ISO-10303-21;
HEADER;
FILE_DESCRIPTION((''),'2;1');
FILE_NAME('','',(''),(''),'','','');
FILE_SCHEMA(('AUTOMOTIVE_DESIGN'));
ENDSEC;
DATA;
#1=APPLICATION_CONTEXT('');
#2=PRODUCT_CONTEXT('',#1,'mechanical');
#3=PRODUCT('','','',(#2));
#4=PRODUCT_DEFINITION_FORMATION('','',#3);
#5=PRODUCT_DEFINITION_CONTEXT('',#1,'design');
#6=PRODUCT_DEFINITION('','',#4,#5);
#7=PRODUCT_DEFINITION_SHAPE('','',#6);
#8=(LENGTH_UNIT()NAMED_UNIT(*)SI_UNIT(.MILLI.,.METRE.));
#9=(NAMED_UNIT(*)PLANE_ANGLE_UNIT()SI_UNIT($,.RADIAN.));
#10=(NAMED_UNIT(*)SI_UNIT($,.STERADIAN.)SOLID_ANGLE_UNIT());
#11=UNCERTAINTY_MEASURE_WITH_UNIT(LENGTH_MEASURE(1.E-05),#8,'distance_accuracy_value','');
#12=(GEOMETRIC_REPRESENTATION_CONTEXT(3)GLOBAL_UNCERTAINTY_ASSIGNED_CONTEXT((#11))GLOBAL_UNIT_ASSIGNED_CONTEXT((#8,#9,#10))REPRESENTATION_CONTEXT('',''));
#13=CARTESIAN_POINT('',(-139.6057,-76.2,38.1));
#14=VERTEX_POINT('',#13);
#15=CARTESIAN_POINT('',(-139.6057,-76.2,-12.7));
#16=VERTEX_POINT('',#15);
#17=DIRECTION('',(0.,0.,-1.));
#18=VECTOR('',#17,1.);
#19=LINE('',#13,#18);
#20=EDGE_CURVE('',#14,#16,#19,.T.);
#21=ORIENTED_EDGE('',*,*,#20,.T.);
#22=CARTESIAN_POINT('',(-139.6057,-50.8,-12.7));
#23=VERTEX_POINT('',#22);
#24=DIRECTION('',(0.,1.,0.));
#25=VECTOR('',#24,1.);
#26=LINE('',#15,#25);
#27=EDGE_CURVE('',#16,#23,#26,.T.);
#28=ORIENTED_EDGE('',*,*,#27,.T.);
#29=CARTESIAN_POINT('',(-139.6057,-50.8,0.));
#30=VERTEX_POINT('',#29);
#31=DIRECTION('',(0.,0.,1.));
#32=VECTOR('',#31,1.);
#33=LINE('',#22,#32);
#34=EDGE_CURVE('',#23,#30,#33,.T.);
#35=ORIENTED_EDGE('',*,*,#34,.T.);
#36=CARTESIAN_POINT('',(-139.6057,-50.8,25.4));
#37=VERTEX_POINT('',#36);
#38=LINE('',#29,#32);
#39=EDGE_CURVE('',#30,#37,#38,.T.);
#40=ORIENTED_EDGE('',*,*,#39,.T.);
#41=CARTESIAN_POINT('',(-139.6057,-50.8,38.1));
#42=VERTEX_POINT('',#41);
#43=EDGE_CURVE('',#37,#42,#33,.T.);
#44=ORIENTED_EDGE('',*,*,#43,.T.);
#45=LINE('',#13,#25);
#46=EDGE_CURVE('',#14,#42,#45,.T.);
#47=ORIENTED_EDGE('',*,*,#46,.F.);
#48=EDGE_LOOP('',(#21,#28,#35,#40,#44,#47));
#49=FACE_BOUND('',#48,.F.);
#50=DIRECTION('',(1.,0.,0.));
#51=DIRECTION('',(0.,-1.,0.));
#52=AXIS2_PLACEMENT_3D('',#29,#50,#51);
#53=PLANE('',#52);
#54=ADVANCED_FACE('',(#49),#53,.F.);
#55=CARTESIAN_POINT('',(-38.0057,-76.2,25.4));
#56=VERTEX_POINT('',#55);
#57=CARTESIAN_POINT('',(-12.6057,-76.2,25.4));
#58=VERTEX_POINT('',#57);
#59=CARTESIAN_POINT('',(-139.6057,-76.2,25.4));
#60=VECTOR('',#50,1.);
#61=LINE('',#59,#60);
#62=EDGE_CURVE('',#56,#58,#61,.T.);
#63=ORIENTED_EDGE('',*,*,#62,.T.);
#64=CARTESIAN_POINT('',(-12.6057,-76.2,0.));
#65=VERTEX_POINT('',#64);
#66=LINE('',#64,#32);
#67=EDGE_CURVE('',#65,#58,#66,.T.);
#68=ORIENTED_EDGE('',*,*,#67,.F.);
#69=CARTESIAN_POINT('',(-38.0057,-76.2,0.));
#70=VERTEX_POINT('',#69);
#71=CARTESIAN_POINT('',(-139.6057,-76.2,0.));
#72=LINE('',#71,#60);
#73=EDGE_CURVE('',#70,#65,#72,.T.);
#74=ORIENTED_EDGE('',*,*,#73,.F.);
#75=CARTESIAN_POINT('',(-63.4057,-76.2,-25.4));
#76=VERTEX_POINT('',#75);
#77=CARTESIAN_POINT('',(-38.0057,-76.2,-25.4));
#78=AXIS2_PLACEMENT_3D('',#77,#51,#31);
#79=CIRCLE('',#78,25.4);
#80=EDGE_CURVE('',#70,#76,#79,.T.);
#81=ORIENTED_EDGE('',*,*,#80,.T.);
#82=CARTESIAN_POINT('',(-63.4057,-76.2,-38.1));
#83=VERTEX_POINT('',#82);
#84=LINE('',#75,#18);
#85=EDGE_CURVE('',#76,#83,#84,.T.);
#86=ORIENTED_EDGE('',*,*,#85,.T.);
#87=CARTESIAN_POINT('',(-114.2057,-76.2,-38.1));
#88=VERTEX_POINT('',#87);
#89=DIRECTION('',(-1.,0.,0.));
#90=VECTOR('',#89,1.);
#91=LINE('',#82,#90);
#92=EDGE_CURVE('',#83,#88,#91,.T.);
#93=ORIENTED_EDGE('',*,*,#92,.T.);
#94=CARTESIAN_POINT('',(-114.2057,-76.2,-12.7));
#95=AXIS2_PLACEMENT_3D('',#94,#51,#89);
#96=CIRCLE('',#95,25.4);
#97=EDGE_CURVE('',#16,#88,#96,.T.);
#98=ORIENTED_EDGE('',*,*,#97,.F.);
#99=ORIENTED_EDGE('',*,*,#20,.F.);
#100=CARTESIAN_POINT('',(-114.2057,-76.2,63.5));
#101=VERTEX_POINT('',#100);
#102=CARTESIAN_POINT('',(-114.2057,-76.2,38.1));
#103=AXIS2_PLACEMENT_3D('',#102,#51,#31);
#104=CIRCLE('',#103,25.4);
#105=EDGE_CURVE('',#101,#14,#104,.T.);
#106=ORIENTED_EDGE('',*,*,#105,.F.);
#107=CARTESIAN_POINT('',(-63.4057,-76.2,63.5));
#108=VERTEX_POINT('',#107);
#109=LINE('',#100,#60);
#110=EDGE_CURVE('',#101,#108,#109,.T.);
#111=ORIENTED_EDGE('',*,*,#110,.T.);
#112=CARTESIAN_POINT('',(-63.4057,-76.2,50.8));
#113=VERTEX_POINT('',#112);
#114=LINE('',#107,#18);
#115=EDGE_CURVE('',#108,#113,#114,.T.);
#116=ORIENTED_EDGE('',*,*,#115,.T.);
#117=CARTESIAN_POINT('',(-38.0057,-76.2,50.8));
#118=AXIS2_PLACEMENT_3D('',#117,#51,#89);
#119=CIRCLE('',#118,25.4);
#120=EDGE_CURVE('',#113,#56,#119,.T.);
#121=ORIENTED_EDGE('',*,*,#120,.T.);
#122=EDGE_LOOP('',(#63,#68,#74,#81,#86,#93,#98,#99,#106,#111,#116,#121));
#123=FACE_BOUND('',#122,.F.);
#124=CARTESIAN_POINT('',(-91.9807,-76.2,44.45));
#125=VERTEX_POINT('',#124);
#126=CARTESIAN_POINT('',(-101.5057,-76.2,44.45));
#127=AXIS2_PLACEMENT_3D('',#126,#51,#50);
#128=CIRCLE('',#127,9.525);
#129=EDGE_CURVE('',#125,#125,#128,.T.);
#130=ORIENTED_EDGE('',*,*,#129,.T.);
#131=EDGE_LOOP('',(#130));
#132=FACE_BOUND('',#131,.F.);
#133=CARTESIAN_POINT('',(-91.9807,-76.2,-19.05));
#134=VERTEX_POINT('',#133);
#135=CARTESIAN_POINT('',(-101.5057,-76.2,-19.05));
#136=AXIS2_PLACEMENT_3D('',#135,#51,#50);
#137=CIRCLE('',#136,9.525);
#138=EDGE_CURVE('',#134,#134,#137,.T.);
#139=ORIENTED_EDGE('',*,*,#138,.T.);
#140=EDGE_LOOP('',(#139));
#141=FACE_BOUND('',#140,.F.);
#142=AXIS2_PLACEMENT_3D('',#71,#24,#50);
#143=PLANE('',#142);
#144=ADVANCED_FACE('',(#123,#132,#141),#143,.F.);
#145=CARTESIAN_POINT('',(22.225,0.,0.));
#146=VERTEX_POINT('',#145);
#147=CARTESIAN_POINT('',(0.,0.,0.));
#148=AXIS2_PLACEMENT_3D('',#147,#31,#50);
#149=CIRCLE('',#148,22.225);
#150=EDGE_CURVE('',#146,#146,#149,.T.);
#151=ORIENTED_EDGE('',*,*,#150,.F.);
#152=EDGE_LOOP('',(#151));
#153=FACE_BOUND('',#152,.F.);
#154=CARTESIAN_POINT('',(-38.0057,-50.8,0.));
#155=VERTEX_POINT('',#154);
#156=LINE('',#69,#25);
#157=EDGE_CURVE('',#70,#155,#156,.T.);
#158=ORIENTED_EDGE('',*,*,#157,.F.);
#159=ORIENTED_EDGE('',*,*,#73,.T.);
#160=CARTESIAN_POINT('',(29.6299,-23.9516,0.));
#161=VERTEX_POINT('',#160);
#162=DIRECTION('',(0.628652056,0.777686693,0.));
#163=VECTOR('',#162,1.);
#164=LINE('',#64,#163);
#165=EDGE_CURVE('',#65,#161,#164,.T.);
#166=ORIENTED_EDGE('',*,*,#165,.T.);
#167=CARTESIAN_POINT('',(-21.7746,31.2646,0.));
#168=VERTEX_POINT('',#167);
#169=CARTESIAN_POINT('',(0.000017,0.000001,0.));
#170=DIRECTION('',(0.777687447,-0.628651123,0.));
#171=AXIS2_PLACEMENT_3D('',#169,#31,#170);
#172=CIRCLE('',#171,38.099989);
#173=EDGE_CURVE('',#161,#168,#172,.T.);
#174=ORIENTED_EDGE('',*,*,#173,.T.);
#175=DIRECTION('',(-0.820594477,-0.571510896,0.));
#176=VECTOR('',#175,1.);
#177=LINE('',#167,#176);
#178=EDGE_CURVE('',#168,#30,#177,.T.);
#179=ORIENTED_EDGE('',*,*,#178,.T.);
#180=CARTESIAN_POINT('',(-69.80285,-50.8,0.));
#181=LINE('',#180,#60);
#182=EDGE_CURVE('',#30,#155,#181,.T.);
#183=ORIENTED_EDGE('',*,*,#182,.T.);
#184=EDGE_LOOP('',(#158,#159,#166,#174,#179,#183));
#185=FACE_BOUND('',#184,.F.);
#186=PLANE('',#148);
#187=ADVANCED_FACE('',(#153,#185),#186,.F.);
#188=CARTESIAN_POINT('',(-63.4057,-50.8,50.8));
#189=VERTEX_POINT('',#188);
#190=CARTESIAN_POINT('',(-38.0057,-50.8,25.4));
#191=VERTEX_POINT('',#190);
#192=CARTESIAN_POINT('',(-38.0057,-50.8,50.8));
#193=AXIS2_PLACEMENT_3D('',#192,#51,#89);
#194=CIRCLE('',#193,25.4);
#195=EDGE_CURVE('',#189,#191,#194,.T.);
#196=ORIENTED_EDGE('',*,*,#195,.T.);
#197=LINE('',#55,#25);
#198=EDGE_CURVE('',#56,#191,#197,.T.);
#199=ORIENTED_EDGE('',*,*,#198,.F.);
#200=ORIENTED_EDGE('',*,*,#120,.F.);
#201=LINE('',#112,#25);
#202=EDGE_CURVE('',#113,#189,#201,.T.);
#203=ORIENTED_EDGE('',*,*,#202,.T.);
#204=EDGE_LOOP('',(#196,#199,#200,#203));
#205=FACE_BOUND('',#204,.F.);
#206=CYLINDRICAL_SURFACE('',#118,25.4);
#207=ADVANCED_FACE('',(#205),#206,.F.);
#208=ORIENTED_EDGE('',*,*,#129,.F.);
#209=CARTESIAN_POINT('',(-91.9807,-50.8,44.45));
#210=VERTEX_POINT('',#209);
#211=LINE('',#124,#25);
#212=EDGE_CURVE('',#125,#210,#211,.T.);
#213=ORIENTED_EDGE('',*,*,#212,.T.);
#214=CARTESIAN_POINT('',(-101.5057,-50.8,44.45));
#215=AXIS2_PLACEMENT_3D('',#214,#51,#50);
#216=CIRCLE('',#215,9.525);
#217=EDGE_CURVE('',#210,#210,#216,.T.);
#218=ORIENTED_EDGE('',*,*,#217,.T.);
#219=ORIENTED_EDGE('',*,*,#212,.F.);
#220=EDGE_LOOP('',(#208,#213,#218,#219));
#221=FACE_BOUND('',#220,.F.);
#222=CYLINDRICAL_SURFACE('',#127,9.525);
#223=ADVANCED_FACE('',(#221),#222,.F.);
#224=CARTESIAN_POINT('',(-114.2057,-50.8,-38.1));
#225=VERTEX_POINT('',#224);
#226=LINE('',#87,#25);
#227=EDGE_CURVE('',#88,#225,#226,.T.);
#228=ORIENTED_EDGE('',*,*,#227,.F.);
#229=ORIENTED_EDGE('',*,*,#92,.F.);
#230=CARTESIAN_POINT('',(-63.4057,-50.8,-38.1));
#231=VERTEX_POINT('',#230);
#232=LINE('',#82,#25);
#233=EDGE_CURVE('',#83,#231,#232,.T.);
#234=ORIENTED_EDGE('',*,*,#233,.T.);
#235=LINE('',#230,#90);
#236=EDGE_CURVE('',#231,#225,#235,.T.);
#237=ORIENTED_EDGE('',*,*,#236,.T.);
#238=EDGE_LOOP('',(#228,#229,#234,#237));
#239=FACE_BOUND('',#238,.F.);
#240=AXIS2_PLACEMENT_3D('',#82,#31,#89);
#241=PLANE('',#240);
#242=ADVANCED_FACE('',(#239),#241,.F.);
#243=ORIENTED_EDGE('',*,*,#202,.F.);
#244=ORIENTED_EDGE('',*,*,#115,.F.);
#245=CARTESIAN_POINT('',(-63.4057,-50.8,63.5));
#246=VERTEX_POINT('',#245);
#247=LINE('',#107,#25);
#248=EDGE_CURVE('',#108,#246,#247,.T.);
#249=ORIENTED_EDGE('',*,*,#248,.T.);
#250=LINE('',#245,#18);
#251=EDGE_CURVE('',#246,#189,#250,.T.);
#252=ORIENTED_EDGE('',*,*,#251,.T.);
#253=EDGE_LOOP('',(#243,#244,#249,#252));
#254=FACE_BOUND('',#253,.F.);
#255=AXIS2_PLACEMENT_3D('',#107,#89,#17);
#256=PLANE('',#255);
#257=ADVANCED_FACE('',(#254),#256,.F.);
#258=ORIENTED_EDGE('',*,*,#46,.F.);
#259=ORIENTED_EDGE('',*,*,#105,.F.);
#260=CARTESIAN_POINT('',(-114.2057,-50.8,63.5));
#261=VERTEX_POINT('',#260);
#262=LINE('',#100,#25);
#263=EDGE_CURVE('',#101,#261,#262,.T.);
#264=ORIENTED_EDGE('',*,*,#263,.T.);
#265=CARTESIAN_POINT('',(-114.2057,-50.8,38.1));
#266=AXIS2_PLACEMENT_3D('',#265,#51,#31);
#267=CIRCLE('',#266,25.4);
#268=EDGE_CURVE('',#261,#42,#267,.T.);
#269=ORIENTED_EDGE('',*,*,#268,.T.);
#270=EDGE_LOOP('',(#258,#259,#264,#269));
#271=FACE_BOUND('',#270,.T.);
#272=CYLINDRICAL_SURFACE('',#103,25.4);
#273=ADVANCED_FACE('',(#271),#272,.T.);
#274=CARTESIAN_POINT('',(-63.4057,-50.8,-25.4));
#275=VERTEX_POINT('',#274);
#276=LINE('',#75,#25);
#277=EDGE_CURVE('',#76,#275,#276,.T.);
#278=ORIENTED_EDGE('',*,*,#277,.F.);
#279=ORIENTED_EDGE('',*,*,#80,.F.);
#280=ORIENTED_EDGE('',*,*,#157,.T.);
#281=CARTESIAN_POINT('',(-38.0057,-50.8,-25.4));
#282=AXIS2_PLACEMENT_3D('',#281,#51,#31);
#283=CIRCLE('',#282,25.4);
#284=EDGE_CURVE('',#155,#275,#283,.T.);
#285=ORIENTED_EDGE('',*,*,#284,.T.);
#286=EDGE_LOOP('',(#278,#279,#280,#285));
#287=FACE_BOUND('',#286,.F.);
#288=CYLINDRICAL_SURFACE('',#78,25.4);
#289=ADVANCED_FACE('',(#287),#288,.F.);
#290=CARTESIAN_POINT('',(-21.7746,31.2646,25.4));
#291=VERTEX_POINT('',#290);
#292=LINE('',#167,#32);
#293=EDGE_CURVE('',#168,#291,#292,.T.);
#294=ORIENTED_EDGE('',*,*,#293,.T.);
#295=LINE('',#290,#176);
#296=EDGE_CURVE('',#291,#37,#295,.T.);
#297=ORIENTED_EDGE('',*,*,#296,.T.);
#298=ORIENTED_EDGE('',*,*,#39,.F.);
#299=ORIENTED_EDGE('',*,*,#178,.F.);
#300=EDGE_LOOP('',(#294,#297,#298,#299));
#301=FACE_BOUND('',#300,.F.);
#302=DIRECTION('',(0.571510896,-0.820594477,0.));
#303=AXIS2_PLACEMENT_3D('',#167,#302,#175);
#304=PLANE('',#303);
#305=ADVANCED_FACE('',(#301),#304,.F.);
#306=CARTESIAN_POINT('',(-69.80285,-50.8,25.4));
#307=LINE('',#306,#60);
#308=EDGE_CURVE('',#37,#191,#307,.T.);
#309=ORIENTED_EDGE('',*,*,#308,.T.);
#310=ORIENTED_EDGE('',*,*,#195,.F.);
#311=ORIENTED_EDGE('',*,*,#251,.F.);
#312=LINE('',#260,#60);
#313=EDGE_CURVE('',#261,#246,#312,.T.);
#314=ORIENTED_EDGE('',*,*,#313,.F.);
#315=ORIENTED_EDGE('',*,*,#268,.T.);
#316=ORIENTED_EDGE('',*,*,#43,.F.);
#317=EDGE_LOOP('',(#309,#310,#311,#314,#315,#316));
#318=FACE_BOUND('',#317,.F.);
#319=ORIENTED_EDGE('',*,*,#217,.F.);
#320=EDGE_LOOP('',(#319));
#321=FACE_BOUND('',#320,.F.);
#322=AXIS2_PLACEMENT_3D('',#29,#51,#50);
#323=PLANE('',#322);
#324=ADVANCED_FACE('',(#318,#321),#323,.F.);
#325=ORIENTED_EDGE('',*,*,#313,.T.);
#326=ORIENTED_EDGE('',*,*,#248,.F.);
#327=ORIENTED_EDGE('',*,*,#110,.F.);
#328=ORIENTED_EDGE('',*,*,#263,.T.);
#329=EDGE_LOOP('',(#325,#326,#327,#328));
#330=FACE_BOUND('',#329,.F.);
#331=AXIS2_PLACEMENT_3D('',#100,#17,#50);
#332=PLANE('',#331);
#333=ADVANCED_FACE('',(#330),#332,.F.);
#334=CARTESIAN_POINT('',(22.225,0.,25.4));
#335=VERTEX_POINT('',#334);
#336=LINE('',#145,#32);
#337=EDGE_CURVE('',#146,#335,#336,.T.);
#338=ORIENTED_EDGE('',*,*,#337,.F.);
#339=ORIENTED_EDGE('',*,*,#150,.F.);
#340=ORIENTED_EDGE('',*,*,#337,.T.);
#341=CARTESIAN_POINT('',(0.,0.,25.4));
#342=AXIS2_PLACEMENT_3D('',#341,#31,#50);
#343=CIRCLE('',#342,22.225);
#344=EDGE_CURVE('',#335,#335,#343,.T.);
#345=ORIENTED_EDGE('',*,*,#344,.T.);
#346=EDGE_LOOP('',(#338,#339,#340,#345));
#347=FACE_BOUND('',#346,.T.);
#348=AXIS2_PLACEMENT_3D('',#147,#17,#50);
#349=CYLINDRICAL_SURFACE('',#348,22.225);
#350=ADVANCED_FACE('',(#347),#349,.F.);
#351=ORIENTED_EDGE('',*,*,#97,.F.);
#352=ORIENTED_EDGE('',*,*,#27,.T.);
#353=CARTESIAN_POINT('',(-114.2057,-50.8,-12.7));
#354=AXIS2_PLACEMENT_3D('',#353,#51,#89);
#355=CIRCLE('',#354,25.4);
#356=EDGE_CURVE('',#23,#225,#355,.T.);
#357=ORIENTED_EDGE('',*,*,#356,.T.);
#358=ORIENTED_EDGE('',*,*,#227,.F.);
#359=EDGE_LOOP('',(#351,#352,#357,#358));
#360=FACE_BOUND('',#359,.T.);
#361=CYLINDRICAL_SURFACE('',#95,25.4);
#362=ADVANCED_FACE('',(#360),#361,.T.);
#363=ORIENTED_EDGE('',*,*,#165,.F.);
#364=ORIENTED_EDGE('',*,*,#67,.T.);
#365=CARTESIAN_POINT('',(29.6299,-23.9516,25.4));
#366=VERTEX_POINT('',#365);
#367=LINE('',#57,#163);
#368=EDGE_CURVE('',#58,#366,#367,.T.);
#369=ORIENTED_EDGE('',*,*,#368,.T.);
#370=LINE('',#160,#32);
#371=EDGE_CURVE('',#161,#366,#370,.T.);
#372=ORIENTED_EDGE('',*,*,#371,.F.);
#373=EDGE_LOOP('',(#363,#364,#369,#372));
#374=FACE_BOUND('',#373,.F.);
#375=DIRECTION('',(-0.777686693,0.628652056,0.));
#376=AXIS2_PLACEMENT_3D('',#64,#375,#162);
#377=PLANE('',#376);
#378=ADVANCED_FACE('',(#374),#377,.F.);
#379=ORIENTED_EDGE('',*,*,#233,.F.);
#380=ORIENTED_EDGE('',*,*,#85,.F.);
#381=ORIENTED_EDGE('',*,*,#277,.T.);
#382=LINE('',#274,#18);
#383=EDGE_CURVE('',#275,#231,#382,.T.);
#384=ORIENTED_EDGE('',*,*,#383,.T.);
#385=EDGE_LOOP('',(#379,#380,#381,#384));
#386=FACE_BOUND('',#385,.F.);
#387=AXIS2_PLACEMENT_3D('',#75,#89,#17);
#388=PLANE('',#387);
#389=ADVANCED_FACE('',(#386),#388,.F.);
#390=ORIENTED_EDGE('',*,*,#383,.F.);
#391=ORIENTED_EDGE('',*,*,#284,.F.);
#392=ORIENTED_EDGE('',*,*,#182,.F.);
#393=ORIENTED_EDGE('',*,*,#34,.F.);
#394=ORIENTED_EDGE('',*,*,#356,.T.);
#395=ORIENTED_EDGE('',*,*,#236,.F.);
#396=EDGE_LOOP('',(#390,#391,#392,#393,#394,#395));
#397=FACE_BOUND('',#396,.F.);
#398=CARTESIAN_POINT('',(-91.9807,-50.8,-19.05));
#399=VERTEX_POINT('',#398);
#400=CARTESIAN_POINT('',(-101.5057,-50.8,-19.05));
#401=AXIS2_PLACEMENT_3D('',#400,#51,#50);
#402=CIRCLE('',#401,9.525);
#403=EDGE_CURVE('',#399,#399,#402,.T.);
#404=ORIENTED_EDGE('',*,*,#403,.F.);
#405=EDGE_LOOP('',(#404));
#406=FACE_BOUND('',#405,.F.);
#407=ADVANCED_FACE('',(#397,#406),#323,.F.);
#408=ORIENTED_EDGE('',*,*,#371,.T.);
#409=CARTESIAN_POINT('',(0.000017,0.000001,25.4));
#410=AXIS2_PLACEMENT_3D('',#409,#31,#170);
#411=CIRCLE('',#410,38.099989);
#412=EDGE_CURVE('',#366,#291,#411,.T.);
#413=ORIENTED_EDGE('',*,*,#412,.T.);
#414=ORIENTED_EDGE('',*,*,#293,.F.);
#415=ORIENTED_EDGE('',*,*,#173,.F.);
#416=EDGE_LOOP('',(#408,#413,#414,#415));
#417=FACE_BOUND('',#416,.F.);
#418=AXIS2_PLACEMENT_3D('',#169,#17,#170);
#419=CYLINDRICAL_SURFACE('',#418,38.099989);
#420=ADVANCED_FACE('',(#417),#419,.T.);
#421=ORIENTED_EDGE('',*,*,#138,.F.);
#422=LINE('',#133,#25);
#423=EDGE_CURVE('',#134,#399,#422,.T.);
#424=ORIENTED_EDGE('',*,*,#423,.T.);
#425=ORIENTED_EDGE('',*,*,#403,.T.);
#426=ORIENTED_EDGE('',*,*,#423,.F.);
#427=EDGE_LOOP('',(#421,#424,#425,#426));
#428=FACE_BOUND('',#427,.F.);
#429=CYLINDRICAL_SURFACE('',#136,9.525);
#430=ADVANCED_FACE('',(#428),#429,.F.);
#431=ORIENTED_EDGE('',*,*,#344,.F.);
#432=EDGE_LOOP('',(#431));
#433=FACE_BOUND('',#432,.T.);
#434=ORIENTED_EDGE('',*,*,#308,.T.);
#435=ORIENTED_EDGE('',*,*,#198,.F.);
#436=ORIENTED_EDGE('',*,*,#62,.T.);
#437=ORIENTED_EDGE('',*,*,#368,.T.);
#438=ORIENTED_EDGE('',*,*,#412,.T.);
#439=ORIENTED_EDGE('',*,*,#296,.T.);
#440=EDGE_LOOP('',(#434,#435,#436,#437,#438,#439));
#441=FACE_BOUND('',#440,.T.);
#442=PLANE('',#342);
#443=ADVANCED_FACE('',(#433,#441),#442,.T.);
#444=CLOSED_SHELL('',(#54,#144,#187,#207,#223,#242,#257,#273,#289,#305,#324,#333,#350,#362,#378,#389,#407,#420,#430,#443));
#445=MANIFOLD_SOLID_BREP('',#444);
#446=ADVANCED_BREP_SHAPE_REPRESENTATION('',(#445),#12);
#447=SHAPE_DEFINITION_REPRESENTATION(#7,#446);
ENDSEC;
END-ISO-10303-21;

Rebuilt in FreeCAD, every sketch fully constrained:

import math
import FreeCAD as App
import Part
import Sketcher

V = App.Vector
Q = App.Units.Quantity

doc = App.newDocument("Part")
body = doc.addObject("PartDesign::Body", "Body")

sketch1 = body.newObject("Sketcher::SketchObject", "Sketch")
sketch1.AttachmentSupport = (doc.getObject("XY_Plane"), [""])
sketch1.MapMode = "FlatFace"
sketch1.addGeometry([
    Part.LineSegment(V(-12.6057, -76.2, 0), V(29.6299, -23.9516, 0)),
    Part.ArcOfCircle(Part.Circle(V(0, 0, 0), V(0, 0, 1), 38.100002), math.radians(-38.950658), math.radians(124.855738)),
    Part.LineSegment(V(-21.7746, 31.2646, 0), V(-139.6057, -50.8, 0)),
    Part.LineSegment(V(-139.6057, -50.8, 0), V(-139.6057, -76.2, 0)),
    Part.LineSegment(V(-139.6057, -76.2, 0), V(-12.6057, -76.2, 0)),
    Part.Circle(V(0, 0, 0), V(0, 0, 1), 22.225),
], False)
sketch1.addConstraint([
    Sketcher.Constraint("Tangent", 0, 2, 1, 1),
    Sketcher.Constraint("Tangent", 1, 2, 2, 1),
    Sketcher.Constraint("Coincident", 2, 2, 3, 1),
    Sketcher.Constraint("Coincident", 3, 2, 4, 1),
    Sketcher.Constraint("Coincident", 4, 2, 0, 1),
    Sketcher.Constraint("Vertical", 3),
    Sketcher.Constraint("Horizontal", 4),
    Sketcher.Constraint("Coincident", 1, 3, -1, 1),
    Sketcher.Constraint("Coincident", 5, 3, -1, 1),
    Sketcher.Constraint("Radius", 1, Q("1.5 in")),
    Sketcher.Constraint("Diameter", 5, Q("1.75 in")),
    Sketcher.Constraint("DistanceX", 4, 1, 4, 2, Q("5 in")),
    Sketcher.Constraint("DistanceY", 3, 2, 3, 1, Q("1 in")),
    Sketcher.Constraint("DistanceY", 3, 2, -1, 1, Q("3 in")),
    Sketcher.Constraint("Angle", 0, Q("51.0493 deg")),
])
pad1 = body.newObject("PartDesign::Pad", "Pad")
pad1.Profile = sketch1
pad1.Length = Q("1 in")

sketch2 = body.newObject("Sketcher::SketchObject", "Sketch001")
sketch2.AttachmentSupport = (doc.getObject("XZ_Plane"), [""])
sketch2.MapMode = "FlatFace"
sketch2.AttachmentOffset = App.Placement(V(0, 0, 3 * 25.4), App.Rotation())
sketch2.addGeometry([
    Part.ArcOfCircle(Part.Circle(V(-38.0057, -25.4, 0), V(0, 0, 1), 25.4), math.radians(90), math.radians(180)),
    Part.LineSegment(V(-38.0057, 0, 0), V(-38.0057, 25.4, 0)),
    Part.ArcOfCircle(Part.Circle(V(-38.0057, 50.8, 0), V(0, 0, 1), 25.4), math.radians(180), math.radians(270)),
    Part.LineSegment(V(-63.4057, 50.8, 0), V(-63.4057, 63.5, 0)),
    Part.LineSegment(V(-63.4057, 63.5, 0), V(-114.2057, 63.5, 0)),
    Part.ArcOfCircle(Part.Circle(V(-114.2057, 38.1, 0), V(0, 0, 1), 25.4), math.radians(90), math.radians(180)),
    Part.LineSegment(V(-139.6057, 38.1, 0), V(-139.6057, -12.7, 0)),
    Part.ArcOfCircle(Part.Circle(V(-114.2057, -12.7, 0), V(0, 0, 1), 25.4), math.radians(180), math.radians(270)),
    Part.LineSegment(V(-114.2057, -38.1, 0), V(-63.4057, -38.1, 0)),
    Part.LineSegment(V(-63.4057, -38.1, 0), V(-63.4057, -25.4, 0)),
    Part.Circle(V(-101.5057, -19.05, 0), V(0, 0, 1), 9.525),
    Part.Circle(V(-101.5057, 44.45, 0), V(0, 0, 1), 9.525),
], False)
sketch2.addConstraint([
    Sketcher.Constraint("Coincident", 0, 1, 1, 1),
    Sketcher.Constraint("Coincident", 1, 2, 2, 2),
    Sketcher.Constraint("Tangent", 2, 1, 3, 1),
    Sketcher.Constraint("Coincident", 3, 2, 4, 1),
    Sketcher.Constraint("Tangent", 4, 2, 5, 1),
    Sketcher.Constraint("Tangent", 5, 2, 6, 1),
    Sketcher.Constraint("Tangent", 6, 2, 7, 1),
    Sketcher.Constraint("Tangent", 7, 2, 8, 1),
    Sketcher.Constraint("Coincident", 8, 2, 9, 1),
    Sketcher.Constraint("Tangent", 9, 2, 0, 2),
    Sketcher.Constraint("Vertical", 1),
    Sketcher.Constraint("Vertical", 3),
    Sketcher.Constraint("Horizontal", 4),
    Sketcher.Constraint("Vertical", 6),
    Sketcher.Constraint("Horizontal", 8),
    Sketcher.Constraint("Vertical", 9),
    Sketcher.Constraint("Equal", 0, 2),
    Sketcher.Constraint("Equal", 2, 5),
    Sketcher.Constraint("Equal", 5, 7),
    Sketcher.Constraint("Equal", 10, 11),
    Sketcher.Constraint("PointOnObject", 0, 1, -1),
    Sketcher.Constraint("Vertical", 0, 3, 2, 3),
    Sketcher.Constraint("Vertical", 10, 3, 11, 3),
    Sketcher.Constraint("Vertical", 2, 3, 0, 1),
    Sketcher.Constraint("Equal", 8, 6),
    Sketcher.Constraint("Equal", 3, 9),
    Sketcher.Constraint("Radius", 0, Q("1 in")),
    Sketcher.Constraint("Diameter", 10, Q("0.75 in")),
    Sketcher.Constraint("DistanceX", 4, 2, 4, 1, Q("2 in")),
    Sketcher.Constraint("DistanceY", 1, 1, 1, 2, Q("1 in")),
    Sketcher.Constraint("DistanceX", 11, 3, 2, 1, Q("1.5 in")),
    Sketcher.Constraint("DistanceY", 10, 3, -1, 1, Q("0.75 in")),
    Sketcher.Constraint("DistanceY", 1, 2, 11, 3, Q("0.75 in")),
    Sketcher.Constraint("DistanceX", 0, 3, -1, 1, Q("38.0057 mm")),
])
pad2 = body.newObject("PartDesign::Pad", "Pad001")
pad2.Profile = sketch2
pad2.Length = Q("1 in")
pad2.Reversed = True

doc.recompute()
